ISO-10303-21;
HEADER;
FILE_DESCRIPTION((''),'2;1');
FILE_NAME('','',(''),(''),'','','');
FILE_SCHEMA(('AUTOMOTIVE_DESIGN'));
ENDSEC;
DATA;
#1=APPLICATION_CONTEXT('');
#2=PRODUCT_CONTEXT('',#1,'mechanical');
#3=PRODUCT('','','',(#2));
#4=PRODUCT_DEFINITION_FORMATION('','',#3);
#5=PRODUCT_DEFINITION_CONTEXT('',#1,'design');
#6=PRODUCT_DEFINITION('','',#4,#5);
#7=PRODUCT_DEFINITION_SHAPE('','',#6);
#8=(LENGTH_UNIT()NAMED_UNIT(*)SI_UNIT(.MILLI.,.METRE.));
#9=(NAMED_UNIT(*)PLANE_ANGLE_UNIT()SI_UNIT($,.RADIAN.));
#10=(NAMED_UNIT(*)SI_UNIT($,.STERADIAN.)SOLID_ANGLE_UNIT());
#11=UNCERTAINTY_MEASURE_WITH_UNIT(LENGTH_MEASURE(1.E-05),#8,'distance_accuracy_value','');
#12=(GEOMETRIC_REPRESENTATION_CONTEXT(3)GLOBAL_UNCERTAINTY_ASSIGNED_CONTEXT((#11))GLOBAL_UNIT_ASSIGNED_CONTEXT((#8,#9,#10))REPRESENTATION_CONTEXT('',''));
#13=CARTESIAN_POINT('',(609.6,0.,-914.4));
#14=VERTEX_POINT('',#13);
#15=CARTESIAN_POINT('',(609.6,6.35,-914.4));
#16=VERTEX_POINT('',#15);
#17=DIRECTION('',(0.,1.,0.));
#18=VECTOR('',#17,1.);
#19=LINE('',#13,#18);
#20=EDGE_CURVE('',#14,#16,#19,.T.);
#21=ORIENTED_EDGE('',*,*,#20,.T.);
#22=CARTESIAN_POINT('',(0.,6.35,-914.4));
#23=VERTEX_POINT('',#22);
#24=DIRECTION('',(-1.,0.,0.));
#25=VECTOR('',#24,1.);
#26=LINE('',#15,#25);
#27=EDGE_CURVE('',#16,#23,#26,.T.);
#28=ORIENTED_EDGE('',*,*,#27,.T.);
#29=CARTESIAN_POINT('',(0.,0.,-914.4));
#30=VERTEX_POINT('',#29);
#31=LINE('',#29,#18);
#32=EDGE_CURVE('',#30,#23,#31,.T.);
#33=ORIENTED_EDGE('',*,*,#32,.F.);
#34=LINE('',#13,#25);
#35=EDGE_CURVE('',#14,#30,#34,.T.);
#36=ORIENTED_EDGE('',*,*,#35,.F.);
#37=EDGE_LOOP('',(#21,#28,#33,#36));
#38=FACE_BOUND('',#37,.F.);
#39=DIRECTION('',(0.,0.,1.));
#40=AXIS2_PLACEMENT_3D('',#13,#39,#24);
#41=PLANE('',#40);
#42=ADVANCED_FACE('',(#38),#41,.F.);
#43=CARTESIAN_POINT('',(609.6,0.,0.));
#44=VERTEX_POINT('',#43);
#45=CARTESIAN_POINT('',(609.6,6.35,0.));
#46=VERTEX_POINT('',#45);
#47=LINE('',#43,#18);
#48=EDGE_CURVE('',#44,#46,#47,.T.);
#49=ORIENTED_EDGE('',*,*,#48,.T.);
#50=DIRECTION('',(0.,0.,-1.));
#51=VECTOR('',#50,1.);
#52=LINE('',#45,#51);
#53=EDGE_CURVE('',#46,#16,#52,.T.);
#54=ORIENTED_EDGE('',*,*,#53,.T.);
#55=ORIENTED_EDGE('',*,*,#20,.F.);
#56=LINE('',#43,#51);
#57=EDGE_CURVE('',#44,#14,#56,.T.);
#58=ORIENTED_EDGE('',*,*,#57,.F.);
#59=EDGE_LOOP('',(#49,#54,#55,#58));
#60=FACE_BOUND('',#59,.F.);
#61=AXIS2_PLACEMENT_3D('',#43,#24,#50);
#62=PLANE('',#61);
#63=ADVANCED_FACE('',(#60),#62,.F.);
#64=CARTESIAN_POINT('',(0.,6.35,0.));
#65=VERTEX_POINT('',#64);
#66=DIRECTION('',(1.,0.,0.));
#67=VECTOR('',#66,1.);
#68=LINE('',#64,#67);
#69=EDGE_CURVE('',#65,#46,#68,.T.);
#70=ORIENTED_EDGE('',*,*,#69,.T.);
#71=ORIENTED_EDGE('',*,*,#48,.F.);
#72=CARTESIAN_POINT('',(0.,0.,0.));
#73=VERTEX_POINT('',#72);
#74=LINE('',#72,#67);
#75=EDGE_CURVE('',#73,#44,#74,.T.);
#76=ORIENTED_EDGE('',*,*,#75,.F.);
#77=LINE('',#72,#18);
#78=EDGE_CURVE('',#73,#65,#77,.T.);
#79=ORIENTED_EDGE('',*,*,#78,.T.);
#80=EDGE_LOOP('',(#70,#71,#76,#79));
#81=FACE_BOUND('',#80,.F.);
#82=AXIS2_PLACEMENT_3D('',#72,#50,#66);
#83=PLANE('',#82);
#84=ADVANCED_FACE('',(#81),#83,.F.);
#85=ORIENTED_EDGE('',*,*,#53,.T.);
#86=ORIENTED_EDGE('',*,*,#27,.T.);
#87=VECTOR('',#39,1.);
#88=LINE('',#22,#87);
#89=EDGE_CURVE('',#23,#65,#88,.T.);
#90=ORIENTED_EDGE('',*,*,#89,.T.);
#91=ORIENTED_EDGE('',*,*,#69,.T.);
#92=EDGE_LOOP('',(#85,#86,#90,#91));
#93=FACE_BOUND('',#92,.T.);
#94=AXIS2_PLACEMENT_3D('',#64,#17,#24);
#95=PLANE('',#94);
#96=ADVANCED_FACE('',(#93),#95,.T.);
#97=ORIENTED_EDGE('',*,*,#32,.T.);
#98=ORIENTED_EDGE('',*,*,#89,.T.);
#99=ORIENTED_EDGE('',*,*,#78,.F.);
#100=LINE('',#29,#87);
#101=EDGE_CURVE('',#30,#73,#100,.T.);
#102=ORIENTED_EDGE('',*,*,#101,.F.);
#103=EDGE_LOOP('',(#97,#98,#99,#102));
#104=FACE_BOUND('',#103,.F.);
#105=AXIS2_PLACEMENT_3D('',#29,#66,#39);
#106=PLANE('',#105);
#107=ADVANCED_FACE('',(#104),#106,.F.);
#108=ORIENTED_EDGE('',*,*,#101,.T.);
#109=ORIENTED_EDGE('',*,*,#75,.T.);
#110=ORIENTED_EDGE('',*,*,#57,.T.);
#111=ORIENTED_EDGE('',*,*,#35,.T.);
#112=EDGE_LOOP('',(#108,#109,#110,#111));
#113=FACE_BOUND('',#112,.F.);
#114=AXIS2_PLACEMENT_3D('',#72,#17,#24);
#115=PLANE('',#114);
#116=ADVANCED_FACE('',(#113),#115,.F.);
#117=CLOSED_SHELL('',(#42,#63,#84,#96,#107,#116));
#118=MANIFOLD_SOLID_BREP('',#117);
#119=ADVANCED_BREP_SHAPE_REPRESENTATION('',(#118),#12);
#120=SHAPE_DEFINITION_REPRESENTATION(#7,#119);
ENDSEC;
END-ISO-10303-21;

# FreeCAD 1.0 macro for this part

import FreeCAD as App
import Part
import Sketcher
Q = App.Units.Quantity


def add_polygon(sketch, points):
    """Adds a closed chain of lines whose ends are joined by coincident constraints."""
    first, n = sketch.GeometryCount, len(points)
    for a, b in zip(points, points[1:] + points[:1]):
        sketch.addGeometry(Part.LineSegment(App.Vector(*a, 0), App.Vector(*b, 0)), False)
    for i in range(n):
        sketch.addConstraint(Sketcher.Constraint("Coincident", first + i, 2, first + (i + 1) % n, 1))

doc = App.newDocument("Part")
params = doc.addObject("Spreadsheet::Sheet", "Params")
for row, (alias, value) in enumerate([
    ("sketch1_width", "24 in"),
    ("sketch1_height", "36 in"),
    ("pad1_length", "0.25 in"),
], start=1):
    params.set(f"A{row}", alias)
    params.set(f"B{row}", "=" + value)
    params.setAlias(f"B{row}", alias)

body = doc.addObject("PartDesign::Body", "Body")

# Sketch on XZ plane
sketch1 = body.newObject("Sketcher::SketchObject", "Sketch")
sketch1.AttachmentSupport = (doc.getObject("XZ_Plane"), [""])
sketch1.MapMode = "FlatFace"
add_polygon(sketch1, [(0, -914), (0, 0), (610, 0), (610, -914)])  # lines 0-3
sketch1.addConstraint([
    Sketcher.Constraint("Vertical", 0),
    Sketcher.Constraint("Horizontal", 1),
    Sketcher.Constraint("Vertical", 2),
    Sketcher.Constraint("Horizontal", 3),
    Sketcher.Constraint("Coincident", 0, 2, -1, 1),
    Sketcher.Constraint("DistanceX", 1, 1, 1, 2, Q("24 in")),
    Sketcher.Constraint("DistanceY", 0, 1, 0, 2, Q("36 in")),
])
sketch1.setExpression("Constraints[9]", "Params.sketch1_width")
sketch1.setExpression("Constraints[10]", "Params.sketch1_height")
pad1 = body.newObject("PartDesign::Pad", "Pad")
pad1.Profile = sketch1
pad1.setExpression("Length", "Params.pad1_length")
pad1.Reversed = True

doc.recompute()
